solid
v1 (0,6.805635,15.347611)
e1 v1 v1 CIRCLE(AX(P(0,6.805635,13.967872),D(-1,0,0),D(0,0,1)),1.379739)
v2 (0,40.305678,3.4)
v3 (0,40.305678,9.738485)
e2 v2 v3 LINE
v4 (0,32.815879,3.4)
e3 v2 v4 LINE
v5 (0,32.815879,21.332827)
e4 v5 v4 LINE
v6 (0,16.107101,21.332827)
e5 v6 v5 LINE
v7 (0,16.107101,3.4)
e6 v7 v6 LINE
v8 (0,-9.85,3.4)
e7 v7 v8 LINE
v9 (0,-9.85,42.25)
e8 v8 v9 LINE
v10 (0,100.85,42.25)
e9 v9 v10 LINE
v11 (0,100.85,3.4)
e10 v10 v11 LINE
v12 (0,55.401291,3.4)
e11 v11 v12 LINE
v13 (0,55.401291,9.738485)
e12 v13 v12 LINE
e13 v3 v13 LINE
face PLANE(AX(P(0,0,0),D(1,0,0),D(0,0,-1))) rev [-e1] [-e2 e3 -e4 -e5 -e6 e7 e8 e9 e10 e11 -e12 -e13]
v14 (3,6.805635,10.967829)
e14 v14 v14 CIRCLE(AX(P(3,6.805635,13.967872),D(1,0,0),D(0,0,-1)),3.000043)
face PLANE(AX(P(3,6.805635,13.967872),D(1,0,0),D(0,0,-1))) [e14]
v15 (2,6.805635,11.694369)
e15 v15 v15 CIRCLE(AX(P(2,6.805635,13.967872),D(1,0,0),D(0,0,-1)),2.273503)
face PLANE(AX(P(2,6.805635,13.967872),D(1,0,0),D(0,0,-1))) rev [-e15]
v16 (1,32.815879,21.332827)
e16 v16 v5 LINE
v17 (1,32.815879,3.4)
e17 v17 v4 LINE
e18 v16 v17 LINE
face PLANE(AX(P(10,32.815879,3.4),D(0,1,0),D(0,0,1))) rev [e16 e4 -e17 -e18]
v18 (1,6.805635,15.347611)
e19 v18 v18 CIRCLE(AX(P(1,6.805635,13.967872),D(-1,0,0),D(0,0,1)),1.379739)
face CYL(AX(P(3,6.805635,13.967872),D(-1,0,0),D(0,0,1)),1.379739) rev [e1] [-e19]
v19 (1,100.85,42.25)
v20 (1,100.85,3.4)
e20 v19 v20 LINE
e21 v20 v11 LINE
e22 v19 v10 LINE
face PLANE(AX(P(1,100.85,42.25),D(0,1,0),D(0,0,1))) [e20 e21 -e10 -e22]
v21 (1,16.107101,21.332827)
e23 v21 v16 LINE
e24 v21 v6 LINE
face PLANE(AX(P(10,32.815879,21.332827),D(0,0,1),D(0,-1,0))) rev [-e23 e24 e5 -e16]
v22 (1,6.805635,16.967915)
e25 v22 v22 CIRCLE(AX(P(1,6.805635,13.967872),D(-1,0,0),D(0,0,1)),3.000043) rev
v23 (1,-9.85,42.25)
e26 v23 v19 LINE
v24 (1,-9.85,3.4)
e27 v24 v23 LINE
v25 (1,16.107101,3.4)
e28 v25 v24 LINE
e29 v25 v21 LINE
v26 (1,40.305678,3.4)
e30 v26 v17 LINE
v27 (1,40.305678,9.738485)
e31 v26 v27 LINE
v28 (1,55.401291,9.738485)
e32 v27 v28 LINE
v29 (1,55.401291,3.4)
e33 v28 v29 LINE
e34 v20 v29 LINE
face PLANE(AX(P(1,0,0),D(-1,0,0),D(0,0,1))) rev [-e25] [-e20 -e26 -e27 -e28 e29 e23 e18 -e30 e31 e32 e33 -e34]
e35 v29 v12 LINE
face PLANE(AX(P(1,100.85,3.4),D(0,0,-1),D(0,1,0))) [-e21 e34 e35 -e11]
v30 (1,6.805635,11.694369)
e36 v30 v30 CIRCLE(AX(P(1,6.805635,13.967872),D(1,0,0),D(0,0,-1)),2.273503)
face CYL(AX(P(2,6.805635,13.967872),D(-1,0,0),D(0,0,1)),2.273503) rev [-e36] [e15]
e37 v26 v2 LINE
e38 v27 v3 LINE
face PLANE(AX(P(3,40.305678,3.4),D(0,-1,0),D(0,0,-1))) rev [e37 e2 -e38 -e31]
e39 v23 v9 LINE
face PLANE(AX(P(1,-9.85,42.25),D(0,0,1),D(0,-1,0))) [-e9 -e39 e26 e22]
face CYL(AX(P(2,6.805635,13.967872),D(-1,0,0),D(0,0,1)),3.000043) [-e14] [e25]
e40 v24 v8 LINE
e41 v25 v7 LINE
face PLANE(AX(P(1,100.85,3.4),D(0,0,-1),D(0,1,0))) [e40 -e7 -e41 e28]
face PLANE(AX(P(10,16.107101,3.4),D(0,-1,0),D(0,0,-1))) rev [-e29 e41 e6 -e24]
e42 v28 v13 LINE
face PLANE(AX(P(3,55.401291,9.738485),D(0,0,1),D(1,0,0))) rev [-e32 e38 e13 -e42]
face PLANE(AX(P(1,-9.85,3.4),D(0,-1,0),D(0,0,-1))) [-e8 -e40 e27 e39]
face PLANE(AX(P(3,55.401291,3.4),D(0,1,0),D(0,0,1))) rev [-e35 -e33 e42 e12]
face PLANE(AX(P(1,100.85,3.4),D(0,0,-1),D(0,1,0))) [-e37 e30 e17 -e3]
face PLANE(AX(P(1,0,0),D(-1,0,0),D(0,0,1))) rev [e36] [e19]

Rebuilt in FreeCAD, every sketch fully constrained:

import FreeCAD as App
import Part
import Sketcher

V = App.Vector

doc = App.newDocument("Part")
params = doc.addObject("Spreadsheet::Sheet", "Params")
for row, (alias, value) in enumerate([
    ("sketch1_width", "110.7 mm"),
    ("sketch1_height", "38.85 mm"),
    ("pad1_length", "0.5 mm"),
    ("sketch2_width", "110.7 mm"),
    ("sketch2_height", "38.85 mm"),
    ("pad2_length", "0.5 mm"),
    ("pocket1_length", "10 mm"),
    ("pocket2_length", "3 mm"),
    ("pocket3_length", "3 mm"),
    ("pad3_length", "1 mm"),
    ("pad4_length", "1 mm"),
], start=1):
    params.set(f"A{row}", alias)
    params.set(f"B{row}", "=" + value)
    params.setAlias(f"B{row}", alias)

body = doc.addObject("PartDesign::Body", "Body")

# Sketch on YZ plane
sketch1 = body.newObject("Sketcher::SketchObject", "Sketch")
sketch1.AttachmentSupport = (doc.getObject("YZ_Plane"), [""])
sketch1.MapMode = "FlatFace"
sketch1.AttachmentOffset = App.Placement(V(0, 0, 0.5), App.Rotation())
sketch1.addGeometry(Part.LineSegment(V(101, 42, 0), V(101, 3, 0)), False)
sketch1.addGeometry(Part.LineSegment(V(101, 3, 0), V(-10, 3, 0)), False)
sketch1.addGeometry(Part.LineSegment(V(-10, 3, 0), V(-10, 42, 0)), False)
sketch1.addGeometry(Part.LineSegment(V(-10, 42, 0), V(101, 42, 0)), False)
sketch1.addConstraint(Sketcher.Constraint("Coincident", 0, 2, 1, 1))
sketch1.addConstraint(Sketcher.Constraint("Coincident", 1, 2, 2, 1))
sketch1.addConstraint(Sketcher.Constraint("Coincident", 2, 2, 3, 1))
sketch1.addConstraint(Sketcher.Constraint("Coincident", 3, 2, 0, 1))
sketch1.addConstraint(Sketcher.Constraint("Vertical", 0))
sketch1.addConstraint(Sketcher.Constraint("Horizontal", 1))
sketch1.addConstraint(Sketcher.Constraint("Vertical", 2))
sketch1.addConstraint(Sketcher.Constraint("Horizontal", 3))
sketch1.addConstraint(Sketcher.Constraint("DistanceX", 1, 2, 1, 1, 110.7))
sketch1.addConstraint(Sketcher.Constraint("DistanceY", 0, 2, 0, 1, 38.85))
sketch1.addConstraint(Sketcher.Constraint("DistanceY", -1, 1, 0, 2, 3.4))
sketch1.addConstraint(Sketcher.Constraint("DistanceX", -1, 1, 0, 2, 100.85))
sketch1.setExpression("Constraints[8]", "Params.sketch1_width")
sketch1.setExpression("Constraints[9]", "Params.sketch1_height")
pad1 = body.newObject("PartDesign::Pad", "Pad")
pad1.Profile = sketch1
pad1.setExpression("Length", "Params.pad1_length")

# Sketch on YZ plane
sketch2 = body.newObject("Sketcher::SketchObject", "Sketch001")
sketch2.AttachmentSupport = (doc.getObject("YZ_Plane"), [""])
sketch2.MapMode = "FlatFace"
sketch2.AttachmentOffset = App.Placement(V(0, 0, 0.5), App.Rotation())
sketch2.addGeometry(Part.LineSegment(V(101, 3, 0), V(-10, 3, 0)), False)
sketch2.addGeometry(Part.LineSegment(V(-10, 3, 0), V(-10, 42, 0)), False)
sketch2.addGeometry(Part.LineSegment(V(-10, 42, 0), V(101, 42, 0)), False)
sketch2.addGeometry(Part.LineSegment(V(101, 42, 0), V(101, 3, 0)), False)
sketch2.addConstraint(Sketcher.Constraint("Coincident", 0, 2, 1, 1))
sketch2.addConstraint(Sketcher.Constraint("Coincident", 1, 2, 2, 1))
sketch2.addConstraint(Sketcher.Constraint("Coincident", 2, 2, 3, 1))
sketch2.addConstraint(Sketcher.Constraint("Coincident", 3, 2, 0, 1))
sketch2.addConstraint(Sketcher.Constraint("Horizontal", 0))
sketch2.addConstraint(Sketcher.Constraint("Vertical", 1))
sketch2.addConstraint(Sketcher.Constraint("Horizontal", 2))
sketch2.addConstraint(Sketcher.Constraint("Vertical", 3))
sketch2.addConstraint(Sketcher.Constraint("DistanceX", 0, 2, 0, 1, 110.7))
sketch2.addConstraint(Sketcher.Constraint("DistanceY", 1, 1, 1, 2, 38.85))
sketch2.addConstraint(Sketcher.Constraint("DistanceY", -1, 1, 0, 2, 3.4))
sketch2.addConstraint(Sketcher.Constraint("DistanceX", 0, 2, -1, 1, 9.85))
sketch2.setExpression("Constraints[8]", "Params.sketch2_width")
sketch2.setExpression("Constraints[9]", "Params.sketch2_height")
pad2 = body.newObject("PartDesign::Pad", "Pad001")
pad2.Profile = sketch2
pad2.setExpression("Length", "Params.pad2_length")
pad2.Reversed = True

# Sketch on YZ plane
sketch3 = body.newObject("Sketcher::SketchObject", "Sketch002")
sketch3.AttachmentSupport = (doc.getObject("YZ_Plane"), [""])
sketch3.MapMode = "FlatFace"
sketch3.addGeometry(Part.LineSegment(V(33, 3, 0), V(16, 3, 0)), False)
sketch3.addGeometry(Part.LineSegment(V(16, 3, 0), V(16, 21, 0)), False)
sketch3.addGeometry(Part.LineSegment(V(16, 21, 0), V(33, 21, 0)), False)
sketch3.addGeometry(Part.LineSegment(V(33, 21, 0), V(33, 3, 0)), False)
sketch3.addConstraint(Sketcher.Constraint("Coincident", 0, 2, 1, 1))
sketch3.addConstraint(Sketcher.Constraint("Coincident", 1, 2, 2, 1))
sketch3.addConstraint(Sketcher.Constraint("Coincident", 2, 2, 3, 1))
sketch3.addConstraint(Sketcher.Constraint("Coincident", 3, 2, 0, 1))
sketch3.addConstraint(Sketcher.Constraint("Horizontal", 0))
sketch3.addConstraint(Sketcher.Constraint("Vertical", 1))
sketch3.addConstraint(Sketcher.Constraint("Horizontal", 2))
sketch3.addConstraint(Sketcher.Constraint("Vertical", 3))
sketch3.addConstraint(Sketcher.Constraint("DistanceY", -1, 1, 0, 2, 3.4))
sketch3.addConstraint(Sketcher.Constraint("DistanceX", -1, 1, 0, 2, 16.107101))
sketch3.addConstraint(Sketcher.Constraint("DistanceX", 0, 2, 0, 1, 16.708777))
sketch3.addConstraint(Sketcher.Constraint("DistanceY", 1, 1, 1, 2, 17.932827))
pocket1 = body.newObject("PartDesign::Pocket", "Pocket")
pocket1.Profile = sketch3
pocket1.setExpression("Length", "Params.pocket1_length")
pocket1.Reversed = True

# Sketch on YZ plane
sketch4 = body.newObject("Sketcher::SketchObject", "Sketch003")
sketch4.AttachmentSupport = (doc.getObject("YZ_Plane"), [""])
sketch4.MapMode = "FlatFace"
sketch4.addGeometry(Part.LineSegment(V(55, 3, 0), V(40, 3, 0)), False)
sketch4.addGeometry(Part.LineSegment(V(40, 3, 0), V(40, 10, 0)), False)
sketch4.addGeometry(Part.LineSegment(V(40, 10, 0), V(55, 10, 0)), False)
sketch4.addGeometry(Part.LineSegment(V(55, 10, 0), V(55, 3, 0)), False)
sketch4.addConstraint(Sketcher.Constraint("Coincident", 0, 2, 1, 1))
sketch4.addConstraint(Sketcher.Constraint("Coincident", 1, 2, 2, 1))
sketch4.addConstraint(Sketcher.Constraint("Coincident", 2, 2, 3, 1))
sketch4.addConstraint(Sketcher.Constraint("Coincident", 3, 2, 0, 1))
sketch4.addConstraint(Sketcher.Constraint("Horizontal", 0))
sketch4.addConstraint(Sketcher.Constraint("Vertical", 1))
sketch4.addConstraint(Sketcher.Constraint("Horizontal", 2))
sketch4.addConstraint(Sketcher.Constraint("Vertical", 3))
sketch4.addConstraint(Sketcher.Constraint("DistanceY", -1, 1, 0, 2, 3.4))
sketch4.addConstraint(Sketcher.Constraint("DistanceX", 0, 2, 0, 1, 15.095612))
sketch4.addConstraint(Sketcher.Constraint("DistanceY", 1, 1, 1, 2, 6.338485))
sketch4.addConstraint(Sketcher.Constraint("DistanceX", -1, 1, 0, 2, 40.305678))
pocket2 = body.newObject("PartDesign::Pocket", "Pocket001")
pocket2.Profile = sketch4
pocket2.setExpression("Length", "Params.pocket2_length")
pocket2.Reversed = True

# Sketch on YZ plane
sketch5 = body.newObject("Sketcher::SketchObject", "Sketch004")
sketch5.AttachmentSupport = (doc.getObject("YZ_Plane"), [""])
sketch5.MapMode = "FlatFace"
sketch5.addGeometry(Part.Circle(V(6.8, 14, 0), V(0, 0, 1), 1.4), False)
sketch5.addConstraint(Sketcher.Constraint("Diameter", 0, 2.759477))
sketch5.addConstraint(Sketcher.Constraint("DistanceX", -1, 1, 0, 3, 6.805635))
sketch5.addConstraint(Sketcher.Constraint("DistanceY", -1, 1, 0, 3, 13.967872))
pocket3 = body.newObject("PartDesign::Pocket", "Pocket002")
pocket3.Profile = sketch5
pocket3.setExpression("Length", "Params.pocket3_length")
pocket3.Reversed = True

# Sketch on YZ plane
sketch6 = body.newObject("Sketcher::SketchObject", "Sketch005")
sketch6.AttachmentSupport = (doc.getObject("YZ_Plane"), [""])
sketch6.MapMode = "FlatFace"
sketch6.AttachmentOffset = App.Placement(V(0, 0, 1), App.Rotation())
sketch6.addGeometry(Part.Circle(V(6.8, 14, 0), V(0, 0, 1), 3), False)
sketch6.addGeometry(Part.Circle(V(6.8, 14, 0), V(0, 0, 1), 2.3), False)
sketch6.addConstraint(Sketcher.Constraint("Coincident", 1, 3, 0, 3))
sketch6.addConstraint(Sketcher.Constraint("Diameter", 0, 6.000086))
sketch6.addConstraint(Sketcher.Constraint("Diameter", 1, 4.547006))
sketch6.addConstraint(Sketcher.Constraint("DistanceX", -1, 1, 0, 3, 6.805635))
sketch6.addConstraint(Sketcher.Constraint("DistanceY", -1, 1, 0, 3, 13.967872))
pad3 = body.newObject("PartDesign::Pad", "Pad002")
pad3.Profile = sketch6
pad3.setExpression("Length", "Params.pad3_length")

# Sketch on YZ plane
sketch7 = body.newObject("Sketcher::SketchObject", "Sketch006")
sketch7.AttachmentSupport = (doc.getObject("YZ_Plane"), [""])
sketch7.MapMode = "FlatFace"
sketch7.AttachmentOffset = App.Placement(V(0, 0, 2), App.Rotation())
sketch7.addGeometry(Part.Circle(V(6.8, 14, 0), V(0, 0, 1), 3), False)
sketch7.addConstraint(Sketcher.Constraint("Diameter", 0, 6.000086))
sketch7.addConstraint(Sketcher.Constraint("DistanceX", -1, 1, 0, 3, 6.805635))
sketch7.addConstraint(Sketcher.Constraint("DistanceY", -1, 1, 0, 3, 13.967872))
pad4 = body.newObject("PartDesign::Pad", "Pad003")
pad4.Profile = sketch7
pad4.setExpression("Length", "Params.pad4_length")

doc.recompute()
